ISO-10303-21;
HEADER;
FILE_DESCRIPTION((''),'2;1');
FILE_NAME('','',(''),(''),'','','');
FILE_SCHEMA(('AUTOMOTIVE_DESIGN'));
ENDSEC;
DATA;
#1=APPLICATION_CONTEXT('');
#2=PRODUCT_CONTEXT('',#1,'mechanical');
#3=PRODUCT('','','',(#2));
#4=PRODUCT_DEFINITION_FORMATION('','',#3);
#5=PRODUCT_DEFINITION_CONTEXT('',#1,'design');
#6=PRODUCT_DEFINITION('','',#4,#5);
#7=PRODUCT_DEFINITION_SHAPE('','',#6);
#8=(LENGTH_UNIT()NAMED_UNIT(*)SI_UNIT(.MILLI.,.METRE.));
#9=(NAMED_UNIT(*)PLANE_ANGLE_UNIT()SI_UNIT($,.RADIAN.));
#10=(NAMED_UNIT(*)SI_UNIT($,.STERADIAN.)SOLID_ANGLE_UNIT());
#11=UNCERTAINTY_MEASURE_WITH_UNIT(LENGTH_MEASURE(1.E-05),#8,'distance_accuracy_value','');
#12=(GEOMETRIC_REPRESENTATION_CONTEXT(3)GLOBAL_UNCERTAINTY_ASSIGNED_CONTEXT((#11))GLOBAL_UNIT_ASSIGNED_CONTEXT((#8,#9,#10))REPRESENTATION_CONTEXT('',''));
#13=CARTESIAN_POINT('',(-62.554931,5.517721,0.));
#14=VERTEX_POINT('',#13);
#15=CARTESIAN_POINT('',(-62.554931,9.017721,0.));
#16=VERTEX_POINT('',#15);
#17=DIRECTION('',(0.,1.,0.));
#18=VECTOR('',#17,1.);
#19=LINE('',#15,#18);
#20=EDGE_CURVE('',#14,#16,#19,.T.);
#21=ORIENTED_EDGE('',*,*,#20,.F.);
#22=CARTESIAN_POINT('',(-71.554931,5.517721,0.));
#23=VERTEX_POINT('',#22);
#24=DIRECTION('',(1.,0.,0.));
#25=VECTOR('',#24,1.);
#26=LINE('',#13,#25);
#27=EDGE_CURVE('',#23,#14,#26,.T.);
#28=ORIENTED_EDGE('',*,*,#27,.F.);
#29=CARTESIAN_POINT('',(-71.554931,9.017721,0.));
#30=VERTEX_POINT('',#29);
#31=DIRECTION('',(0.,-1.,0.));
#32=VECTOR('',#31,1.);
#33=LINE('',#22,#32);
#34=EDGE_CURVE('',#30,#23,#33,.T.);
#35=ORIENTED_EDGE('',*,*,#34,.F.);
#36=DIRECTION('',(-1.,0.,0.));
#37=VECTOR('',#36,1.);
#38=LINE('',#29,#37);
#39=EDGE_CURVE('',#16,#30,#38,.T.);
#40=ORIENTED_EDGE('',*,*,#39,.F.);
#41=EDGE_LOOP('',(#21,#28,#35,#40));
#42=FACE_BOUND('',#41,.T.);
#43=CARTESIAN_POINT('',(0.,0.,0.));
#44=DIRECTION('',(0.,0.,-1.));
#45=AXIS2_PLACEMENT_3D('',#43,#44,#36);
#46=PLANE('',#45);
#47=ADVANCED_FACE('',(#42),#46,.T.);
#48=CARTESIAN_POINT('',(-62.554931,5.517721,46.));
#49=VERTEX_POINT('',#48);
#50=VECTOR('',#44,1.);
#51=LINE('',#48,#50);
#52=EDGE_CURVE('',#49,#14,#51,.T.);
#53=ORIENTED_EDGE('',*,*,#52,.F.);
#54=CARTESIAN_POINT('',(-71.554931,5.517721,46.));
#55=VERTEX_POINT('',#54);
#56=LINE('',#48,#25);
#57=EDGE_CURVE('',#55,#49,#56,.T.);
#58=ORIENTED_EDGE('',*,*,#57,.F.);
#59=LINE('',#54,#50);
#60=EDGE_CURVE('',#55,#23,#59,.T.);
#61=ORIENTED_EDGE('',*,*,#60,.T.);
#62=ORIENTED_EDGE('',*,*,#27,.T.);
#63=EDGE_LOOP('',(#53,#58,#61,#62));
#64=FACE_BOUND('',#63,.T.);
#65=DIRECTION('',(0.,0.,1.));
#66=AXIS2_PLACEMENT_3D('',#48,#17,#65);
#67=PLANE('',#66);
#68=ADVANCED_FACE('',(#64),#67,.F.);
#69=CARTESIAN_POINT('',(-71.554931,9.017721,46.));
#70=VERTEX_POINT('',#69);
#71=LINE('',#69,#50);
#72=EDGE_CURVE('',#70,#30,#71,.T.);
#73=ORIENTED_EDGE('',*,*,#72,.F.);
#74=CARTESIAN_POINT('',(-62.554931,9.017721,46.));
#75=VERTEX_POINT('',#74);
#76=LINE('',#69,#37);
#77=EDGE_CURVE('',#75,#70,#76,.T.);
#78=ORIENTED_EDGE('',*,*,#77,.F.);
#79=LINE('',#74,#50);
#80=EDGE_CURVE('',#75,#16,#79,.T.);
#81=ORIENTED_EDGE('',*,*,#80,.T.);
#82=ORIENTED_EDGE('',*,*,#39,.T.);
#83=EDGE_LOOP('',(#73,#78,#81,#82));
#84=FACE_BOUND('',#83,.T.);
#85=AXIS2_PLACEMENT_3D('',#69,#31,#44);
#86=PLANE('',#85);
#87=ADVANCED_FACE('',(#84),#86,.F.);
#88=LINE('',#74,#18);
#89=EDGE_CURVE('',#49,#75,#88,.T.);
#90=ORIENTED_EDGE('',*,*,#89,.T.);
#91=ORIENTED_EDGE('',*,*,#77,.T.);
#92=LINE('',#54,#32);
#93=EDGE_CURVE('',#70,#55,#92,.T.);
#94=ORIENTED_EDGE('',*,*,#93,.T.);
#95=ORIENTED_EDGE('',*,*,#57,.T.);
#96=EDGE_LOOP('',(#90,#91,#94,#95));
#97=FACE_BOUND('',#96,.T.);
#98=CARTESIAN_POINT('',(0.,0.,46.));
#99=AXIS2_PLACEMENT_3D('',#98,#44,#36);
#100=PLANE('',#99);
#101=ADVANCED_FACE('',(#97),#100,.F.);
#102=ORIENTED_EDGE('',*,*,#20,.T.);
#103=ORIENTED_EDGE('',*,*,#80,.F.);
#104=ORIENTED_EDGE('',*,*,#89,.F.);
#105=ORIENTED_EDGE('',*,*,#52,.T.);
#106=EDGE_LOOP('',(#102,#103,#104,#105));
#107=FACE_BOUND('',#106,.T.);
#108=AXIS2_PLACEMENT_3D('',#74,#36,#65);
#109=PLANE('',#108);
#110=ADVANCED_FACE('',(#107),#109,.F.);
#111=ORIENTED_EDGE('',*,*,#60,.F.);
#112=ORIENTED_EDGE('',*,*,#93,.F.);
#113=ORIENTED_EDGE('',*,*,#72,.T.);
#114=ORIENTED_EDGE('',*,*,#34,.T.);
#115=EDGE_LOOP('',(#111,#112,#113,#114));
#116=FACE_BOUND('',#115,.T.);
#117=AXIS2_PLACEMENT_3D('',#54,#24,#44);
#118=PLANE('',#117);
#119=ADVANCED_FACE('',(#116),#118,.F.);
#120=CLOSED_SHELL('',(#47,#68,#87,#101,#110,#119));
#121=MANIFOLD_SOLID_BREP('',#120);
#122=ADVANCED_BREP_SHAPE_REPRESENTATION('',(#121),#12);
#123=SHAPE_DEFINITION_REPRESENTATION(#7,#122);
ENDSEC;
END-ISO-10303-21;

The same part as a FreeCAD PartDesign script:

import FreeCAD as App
import Part
import Sketcher
from FreeCAD import Vector


def add_polygon(sketch, points):
    """Adds a closed chain of lines whose ends are joined by coincident constraints."""
    first, n = sketch.GeometryCount, len(points)
    for a, b in zip(points, points[1:] + points[:1]):
        sketch.addGeometry(Part.LineSegment(App.Vector(*a, 0), App.Vector(*b, 0)), False)
    for i in range(n):
        sketch.addConstraint(Sketcher.Constraint("Coincident", first + i, 2, first + (i + 1) % n, 1))

doc = App.newDocument("Part")
body = doc.addObject("PartDesign::Body", "Body")

# Sketch on XY plane
sketch1 = doc.addObject("Sketcher::SketchObject", "Sketch")
body.addObject(sketch1)
sketch1.AttachmentSupport = (doc.XY_Plane, [""])
sketch1.MapMode = "FlatFace"
add_polygon(sketch1, [(-71.6, 9), (-71.6, 5.5), (-62.6, 5.5), (-62.6, 9)])  # lines 0-3
sketch1.addConstraint(Sketcher.Constraint("Vertical", 0))
sketch1.addConstraint(Sketcher.Constraint("Horizontal", 1))
sketch1.addConstraint(Sketcher.Constraint("Vertical", 2))
sketch1.addConstraint(Sketcher.Constraint("Horizontal", 3))
sketch1.addConstraint(Sketcher.Constraint("DistanceX", 1, 1, 1, 2, 9.0))
sketch1.addConstraint(Sketcher.Constraint("DistanceY", 0, 2, 0, 1, 3.5))
sketch1.addConstraint(Sketcher.Constraint("DistanceX", 0, 2, -1, 1, 71.554931))
sketch1.addConstraint(Sketcher.Constraint("DistanceY", -1, 1, 0, 2, 5.517721))
pad1 = doc.addObject("PartDesign::Pad", "Pad")
body.addObject(pad1)
pad1.Profile = sketch1
pad1.Length = 46

doc.recompute()
